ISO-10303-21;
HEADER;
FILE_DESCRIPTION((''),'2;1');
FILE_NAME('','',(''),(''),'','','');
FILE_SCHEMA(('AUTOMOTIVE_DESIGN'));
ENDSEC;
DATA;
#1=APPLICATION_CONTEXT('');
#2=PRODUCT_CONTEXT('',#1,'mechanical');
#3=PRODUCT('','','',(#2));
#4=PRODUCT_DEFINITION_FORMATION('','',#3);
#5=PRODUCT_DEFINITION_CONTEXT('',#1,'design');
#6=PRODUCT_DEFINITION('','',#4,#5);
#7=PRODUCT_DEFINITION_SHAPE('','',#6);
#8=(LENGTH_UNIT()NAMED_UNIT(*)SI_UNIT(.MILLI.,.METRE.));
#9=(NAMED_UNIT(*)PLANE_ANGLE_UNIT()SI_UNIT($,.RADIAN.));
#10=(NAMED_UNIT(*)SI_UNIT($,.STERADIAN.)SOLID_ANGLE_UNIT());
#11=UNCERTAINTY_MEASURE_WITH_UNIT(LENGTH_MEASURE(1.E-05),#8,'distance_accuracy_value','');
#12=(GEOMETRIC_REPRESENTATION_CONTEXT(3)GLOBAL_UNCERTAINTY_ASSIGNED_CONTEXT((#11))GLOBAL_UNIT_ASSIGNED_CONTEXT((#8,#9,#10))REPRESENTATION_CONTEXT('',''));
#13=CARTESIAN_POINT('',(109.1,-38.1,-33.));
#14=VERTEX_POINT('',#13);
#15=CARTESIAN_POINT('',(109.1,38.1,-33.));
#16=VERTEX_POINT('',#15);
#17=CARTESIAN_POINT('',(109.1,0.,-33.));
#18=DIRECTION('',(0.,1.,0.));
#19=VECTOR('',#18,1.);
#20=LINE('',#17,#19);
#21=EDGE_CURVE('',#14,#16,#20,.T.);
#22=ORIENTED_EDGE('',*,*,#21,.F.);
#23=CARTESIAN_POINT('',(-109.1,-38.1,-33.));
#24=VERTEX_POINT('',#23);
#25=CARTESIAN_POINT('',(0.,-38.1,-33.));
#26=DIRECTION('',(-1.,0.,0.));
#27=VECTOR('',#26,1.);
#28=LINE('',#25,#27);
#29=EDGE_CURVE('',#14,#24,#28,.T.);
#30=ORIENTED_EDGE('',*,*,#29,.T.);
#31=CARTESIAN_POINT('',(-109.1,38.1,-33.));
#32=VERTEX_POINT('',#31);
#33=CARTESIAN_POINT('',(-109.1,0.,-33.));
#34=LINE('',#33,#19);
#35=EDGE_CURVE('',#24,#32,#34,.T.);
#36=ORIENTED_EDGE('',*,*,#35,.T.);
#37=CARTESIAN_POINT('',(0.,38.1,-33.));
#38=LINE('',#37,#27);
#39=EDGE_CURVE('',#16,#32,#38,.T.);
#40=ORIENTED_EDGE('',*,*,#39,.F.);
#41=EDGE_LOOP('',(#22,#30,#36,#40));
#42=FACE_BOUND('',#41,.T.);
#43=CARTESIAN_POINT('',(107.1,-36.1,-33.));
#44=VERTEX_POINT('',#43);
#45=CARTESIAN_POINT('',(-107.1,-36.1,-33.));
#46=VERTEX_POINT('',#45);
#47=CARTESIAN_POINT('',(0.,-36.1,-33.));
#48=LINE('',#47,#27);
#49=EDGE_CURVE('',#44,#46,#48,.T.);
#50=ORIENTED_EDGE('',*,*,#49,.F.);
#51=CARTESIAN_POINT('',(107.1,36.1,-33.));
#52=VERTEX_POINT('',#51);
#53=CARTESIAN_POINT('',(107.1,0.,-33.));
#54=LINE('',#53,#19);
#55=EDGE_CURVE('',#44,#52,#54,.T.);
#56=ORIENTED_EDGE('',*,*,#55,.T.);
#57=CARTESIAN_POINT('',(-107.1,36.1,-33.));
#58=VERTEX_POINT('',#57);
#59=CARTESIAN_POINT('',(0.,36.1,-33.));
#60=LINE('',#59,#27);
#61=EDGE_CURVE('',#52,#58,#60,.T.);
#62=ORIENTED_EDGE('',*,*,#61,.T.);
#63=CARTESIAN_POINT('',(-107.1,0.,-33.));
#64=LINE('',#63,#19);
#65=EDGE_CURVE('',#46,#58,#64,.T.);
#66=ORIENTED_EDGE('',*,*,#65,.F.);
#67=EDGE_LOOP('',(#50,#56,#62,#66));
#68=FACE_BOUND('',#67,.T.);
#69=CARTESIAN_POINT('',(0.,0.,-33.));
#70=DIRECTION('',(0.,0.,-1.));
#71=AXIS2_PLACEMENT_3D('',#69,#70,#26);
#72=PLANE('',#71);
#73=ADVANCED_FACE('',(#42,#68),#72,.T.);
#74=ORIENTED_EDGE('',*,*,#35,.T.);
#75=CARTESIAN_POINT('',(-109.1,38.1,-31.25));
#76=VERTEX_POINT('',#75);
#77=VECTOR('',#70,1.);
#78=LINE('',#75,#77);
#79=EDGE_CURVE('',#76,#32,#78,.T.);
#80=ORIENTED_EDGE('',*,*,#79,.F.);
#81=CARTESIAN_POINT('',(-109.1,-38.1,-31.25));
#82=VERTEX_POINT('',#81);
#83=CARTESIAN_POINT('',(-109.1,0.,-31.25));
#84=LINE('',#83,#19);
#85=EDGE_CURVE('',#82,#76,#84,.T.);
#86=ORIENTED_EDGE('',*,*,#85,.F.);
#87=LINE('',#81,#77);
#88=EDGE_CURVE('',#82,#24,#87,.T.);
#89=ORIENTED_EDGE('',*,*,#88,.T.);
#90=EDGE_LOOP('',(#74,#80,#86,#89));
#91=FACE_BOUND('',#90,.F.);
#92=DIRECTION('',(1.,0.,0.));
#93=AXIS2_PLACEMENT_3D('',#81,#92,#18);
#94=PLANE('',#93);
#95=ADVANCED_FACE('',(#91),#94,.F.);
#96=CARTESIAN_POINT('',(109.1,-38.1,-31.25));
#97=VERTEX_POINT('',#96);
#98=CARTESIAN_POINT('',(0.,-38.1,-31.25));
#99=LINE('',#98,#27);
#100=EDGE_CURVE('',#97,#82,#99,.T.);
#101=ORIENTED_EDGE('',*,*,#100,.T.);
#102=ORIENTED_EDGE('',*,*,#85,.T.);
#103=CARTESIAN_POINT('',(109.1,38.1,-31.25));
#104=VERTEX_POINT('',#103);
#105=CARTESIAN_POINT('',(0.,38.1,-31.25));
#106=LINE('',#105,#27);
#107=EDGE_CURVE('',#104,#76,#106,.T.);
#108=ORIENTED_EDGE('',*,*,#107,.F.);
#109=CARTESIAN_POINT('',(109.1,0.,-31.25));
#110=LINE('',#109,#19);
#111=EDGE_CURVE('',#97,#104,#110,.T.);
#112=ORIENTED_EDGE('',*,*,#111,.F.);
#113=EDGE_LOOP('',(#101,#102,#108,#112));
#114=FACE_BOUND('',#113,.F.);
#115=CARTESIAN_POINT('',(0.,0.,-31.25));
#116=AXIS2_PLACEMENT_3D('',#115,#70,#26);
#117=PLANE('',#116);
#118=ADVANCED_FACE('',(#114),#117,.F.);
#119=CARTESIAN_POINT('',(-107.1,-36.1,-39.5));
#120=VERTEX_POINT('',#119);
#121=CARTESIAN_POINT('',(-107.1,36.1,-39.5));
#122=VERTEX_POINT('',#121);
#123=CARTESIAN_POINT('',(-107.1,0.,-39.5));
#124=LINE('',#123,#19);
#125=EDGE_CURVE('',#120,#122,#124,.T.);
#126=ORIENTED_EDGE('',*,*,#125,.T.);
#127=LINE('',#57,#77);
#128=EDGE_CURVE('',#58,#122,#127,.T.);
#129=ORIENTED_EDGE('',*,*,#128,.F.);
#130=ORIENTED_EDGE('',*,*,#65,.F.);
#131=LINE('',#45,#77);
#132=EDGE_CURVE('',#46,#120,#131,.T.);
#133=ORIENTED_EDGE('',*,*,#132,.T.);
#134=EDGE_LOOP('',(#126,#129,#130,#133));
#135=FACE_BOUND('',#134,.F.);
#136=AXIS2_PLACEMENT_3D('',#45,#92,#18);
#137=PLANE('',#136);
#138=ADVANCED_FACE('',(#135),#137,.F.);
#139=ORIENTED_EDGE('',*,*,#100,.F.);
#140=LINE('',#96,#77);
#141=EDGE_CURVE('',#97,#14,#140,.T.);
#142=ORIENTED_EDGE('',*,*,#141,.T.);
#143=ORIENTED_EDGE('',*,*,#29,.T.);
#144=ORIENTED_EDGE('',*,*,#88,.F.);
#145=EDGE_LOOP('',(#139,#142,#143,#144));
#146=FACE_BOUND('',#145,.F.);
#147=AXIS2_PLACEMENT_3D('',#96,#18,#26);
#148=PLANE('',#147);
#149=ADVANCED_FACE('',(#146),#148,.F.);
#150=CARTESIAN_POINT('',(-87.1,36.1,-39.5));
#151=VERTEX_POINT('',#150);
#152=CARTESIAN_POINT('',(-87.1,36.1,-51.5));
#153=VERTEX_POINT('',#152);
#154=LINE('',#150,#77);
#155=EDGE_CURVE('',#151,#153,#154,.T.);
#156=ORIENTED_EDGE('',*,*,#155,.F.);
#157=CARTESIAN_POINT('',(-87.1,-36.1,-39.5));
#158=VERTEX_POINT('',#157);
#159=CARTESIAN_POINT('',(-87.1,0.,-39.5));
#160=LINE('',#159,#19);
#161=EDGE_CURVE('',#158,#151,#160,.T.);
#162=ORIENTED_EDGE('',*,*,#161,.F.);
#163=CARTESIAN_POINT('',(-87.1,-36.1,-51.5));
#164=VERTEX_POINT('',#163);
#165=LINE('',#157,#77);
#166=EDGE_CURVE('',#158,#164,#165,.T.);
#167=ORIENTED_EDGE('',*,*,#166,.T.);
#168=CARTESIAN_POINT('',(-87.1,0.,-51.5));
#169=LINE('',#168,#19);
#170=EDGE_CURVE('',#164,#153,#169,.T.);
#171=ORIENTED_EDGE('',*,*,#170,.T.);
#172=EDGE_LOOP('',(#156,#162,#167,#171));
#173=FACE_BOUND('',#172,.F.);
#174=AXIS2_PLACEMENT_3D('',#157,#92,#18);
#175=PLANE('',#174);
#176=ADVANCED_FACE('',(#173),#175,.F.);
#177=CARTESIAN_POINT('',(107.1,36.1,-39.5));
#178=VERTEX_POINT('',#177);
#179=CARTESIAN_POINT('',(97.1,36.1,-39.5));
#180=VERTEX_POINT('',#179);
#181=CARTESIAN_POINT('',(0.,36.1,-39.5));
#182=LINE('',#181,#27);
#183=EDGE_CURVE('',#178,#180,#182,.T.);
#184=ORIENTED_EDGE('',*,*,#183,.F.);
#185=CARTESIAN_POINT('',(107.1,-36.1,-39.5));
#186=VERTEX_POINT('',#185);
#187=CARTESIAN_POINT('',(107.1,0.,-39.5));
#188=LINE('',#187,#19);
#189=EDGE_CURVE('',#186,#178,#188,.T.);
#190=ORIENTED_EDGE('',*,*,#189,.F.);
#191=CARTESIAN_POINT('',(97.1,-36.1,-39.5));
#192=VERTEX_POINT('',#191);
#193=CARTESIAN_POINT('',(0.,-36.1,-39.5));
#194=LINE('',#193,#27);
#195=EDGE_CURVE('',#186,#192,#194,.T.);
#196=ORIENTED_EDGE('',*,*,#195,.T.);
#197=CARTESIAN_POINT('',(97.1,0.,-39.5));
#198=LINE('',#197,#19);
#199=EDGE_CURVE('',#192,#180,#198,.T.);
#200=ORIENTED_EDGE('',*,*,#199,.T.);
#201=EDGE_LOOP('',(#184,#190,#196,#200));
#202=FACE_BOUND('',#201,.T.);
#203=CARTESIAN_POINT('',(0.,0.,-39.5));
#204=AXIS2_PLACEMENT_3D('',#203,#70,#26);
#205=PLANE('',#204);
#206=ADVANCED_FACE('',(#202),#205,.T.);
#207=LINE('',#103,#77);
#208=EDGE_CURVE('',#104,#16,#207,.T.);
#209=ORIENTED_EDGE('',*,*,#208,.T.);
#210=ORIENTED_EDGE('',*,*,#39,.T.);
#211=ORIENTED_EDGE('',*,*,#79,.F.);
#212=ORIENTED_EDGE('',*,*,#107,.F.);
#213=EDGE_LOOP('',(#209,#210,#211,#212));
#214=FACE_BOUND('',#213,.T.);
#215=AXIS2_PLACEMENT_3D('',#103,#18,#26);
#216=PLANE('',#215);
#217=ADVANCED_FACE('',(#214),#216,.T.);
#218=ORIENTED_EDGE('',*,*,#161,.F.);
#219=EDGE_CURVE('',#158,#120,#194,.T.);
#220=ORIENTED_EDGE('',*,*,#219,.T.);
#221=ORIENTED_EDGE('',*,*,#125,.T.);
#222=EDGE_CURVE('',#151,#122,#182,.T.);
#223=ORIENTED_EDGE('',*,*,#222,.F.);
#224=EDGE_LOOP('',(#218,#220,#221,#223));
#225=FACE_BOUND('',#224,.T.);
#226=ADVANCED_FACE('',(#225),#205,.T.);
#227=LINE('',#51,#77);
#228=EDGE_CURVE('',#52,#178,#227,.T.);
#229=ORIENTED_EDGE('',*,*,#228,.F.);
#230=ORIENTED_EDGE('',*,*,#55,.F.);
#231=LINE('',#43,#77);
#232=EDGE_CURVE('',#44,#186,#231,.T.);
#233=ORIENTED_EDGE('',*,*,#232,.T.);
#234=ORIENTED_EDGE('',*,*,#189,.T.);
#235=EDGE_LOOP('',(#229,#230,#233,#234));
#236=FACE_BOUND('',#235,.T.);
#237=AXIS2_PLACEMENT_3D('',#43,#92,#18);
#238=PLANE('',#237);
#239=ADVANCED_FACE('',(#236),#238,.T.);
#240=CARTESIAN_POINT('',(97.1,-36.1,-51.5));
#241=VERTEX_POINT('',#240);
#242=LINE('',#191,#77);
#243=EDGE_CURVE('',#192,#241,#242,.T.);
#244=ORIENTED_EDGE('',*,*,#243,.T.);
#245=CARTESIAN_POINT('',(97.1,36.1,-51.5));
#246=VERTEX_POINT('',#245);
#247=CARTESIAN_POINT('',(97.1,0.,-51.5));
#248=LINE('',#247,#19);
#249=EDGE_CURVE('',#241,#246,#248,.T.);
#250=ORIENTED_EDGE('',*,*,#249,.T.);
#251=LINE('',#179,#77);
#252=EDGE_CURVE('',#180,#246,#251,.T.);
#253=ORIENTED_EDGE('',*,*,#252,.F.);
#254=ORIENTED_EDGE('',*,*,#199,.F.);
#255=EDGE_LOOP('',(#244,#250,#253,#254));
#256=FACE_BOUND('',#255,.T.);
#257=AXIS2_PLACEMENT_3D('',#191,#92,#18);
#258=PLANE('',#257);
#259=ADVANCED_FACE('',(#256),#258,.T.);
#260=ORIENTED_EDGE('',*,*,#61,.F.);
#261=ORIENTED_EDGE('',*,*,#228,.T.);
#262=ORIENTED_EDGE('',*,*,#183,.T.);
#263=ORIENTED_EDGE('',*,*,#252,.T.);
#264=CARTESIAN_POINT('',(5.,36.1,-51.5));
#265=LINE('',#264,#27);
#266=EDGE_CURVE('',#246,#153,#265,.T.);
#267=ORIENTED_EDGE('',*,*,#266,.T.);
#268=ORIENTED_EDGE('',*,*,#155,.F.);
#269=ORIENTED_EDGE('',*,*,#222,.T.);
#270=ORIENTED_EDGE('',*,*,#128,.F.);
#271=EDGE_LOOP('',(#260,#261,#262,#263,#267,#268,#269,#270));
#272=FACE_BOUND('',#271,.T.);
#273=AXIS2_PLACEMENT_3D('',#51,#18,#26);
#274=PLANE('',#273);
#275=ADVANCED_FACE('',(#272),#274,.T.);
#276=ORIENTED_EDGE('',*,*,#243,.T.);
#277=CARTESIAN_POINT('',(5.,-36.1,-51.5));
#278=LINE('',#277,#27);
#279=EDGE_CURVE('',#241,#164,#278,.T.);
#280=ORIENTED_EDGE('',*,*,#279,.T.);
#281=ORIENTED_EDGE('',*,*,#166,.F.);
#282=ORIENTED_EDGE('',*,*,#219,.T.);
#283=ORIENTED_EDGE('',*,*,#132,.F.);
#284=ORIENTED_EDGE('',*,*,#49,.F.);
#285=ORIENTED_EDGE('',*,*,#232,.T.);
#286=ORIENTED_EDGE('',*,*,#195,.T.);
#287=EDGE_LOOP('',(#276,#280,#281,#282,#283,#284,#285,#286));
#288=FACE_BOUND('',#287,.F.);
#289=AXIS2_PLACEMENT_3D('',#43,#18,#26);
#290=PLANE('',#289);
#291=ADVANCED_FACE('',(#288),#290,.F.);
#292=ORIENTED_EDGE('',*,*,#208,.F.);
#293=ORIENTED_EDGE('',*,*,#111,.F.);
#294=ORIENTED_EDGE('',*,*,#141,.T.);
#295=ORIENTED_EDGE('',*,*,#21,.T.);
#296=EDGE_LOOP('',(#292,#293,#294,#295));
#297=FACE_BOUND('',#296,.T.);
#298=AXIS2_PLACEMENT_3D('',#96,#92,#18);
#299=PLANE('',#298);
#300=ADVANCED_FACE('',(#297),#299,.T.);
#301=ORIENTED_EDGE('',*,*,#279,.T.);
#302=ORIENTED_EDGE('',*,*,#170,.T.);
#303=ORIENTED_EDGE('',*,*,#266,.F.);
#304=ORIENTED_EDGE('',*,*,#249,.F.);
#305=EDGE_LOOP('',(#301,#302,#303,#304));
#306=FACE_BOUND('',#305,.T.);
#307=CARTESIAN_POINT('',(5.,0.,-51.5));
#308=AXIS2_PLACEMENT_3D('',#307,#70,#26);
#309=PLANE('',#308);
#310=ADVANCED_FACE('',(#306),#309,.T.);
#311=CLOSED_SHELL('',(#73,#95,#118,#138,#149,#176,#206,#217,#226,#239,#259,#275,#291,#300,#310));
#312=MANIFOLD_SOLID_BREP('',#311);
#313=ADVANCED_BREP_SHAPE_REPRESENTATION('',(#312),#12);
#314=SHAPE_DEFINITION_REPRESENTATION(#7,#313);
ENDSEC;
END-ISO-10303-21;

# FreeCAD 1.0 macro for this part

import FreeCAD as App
import Part
import Sketcher

doc = App.newDocument("Part")
body = doc.addObject("PartDesign::Body", "Body")

sketch1 = body.newObject("Sketcher::SketchObject", "Sketch")
sketch1.AttachmentSupport = (doc.getObject("XY_Plane"), [""])
sketch1.MapMode = "FlatFace"
sketch1.AttachmentOffset = App.Placement(App.Vector(0, 0, -31.25), App.Rotation())
sketch1.addGeometry(Part.LineSegment(App.Vector(-109.1, -38.1, 0), App.Vector(-109.1, 38.1, 0)), False)
sketch1.addGeometry(Part.LineSegment(App.Vector(-109.1, 38.1, 0), App.Vector(109.1, 38.1, 0)), False)
sketch1.addGeometry(Part.LineSegment(App.Vector(109.1, 38.1, 0), App.Vector(109.1, -38.1, 0)), False)
sketch1.addGeometry(Part.LineSegment(App.Vector(109.1, -38.1, 0), App.Vector(-109.1, -38.1, 0)), False)
sketch1.addConstraint(Sketcher.Constraint("Coincident", 0, 2, 1, 1))
sketch1.addConstraint(Sketcher.Constraint("Coincident", 1, 2, 2, 1))
sketch1.addConstraint(Sketcher.Constraint("Coincident", 2, 2, 3, 1))
sketch1.addConstraint(Sketcher.Constraint("Coincident", 3, 2, 0, 1))
sketch1.addConstraint(Sketcher.Constraint("Vertical", 0))
sketch1.addConstraint(Sketcher.Constraint("Horizontal", 1))
sketch1.addConstraint(Sketcher.Constraint("Vertical", 2))
sketch1.addConstraint(Sketcher.Constraint("Horizontal", 3))
sketch1.addConstraint(Sketcher.Constraint("Symmetric", 0, 2, 2, 2, -1, 1))
sketch1.addConstraint(Sketcher.Constraint("DistanceX", 1, 1, 1, 2, 218.2))
sketch1.addConstraint(Sketcher.Constraint("DistanceY", 0, 1, 0, 2, 76.2))
pad1 = body.newObject("PartDesign::Pad", "Pad")
pad1.Profile = sketch1
pad1.Length = 1.75
pad1.Reversed = True

sketch2 = body.newObject("Sketcher::SketchObject", "Sketch001")
sketch2.AttachmentSupport = (doc.getObject("XY_Plane"), [""])
sketch2.MapMode = "FlatFace"
sketch2.AttachmentOffset = App.Placement(App.Vector(0, 0, -33), App.Rotation())
sketch2.addGeometry(Part.LineSegment(App.Vector(-107.1, -36.1, 0), App.Vector(-107.1, 36.1, 0)), False)
sketch2.addGeometry(Part.LineSegment(App.Vector(-107.1, 36.1, 0), App.Vector(107.1, 36.1, 0)), False)
sketch2.addGeometry(Part.LineSegment(App.Vector(107.1, 36.1, 0), App.Vector(107.1, -36.1, 0)), False)
sketch2.addGeometry(Part.LineSegment(App.Vector(107.1, -36.1, 0), App.Vector(-107.1, -36.1, 0)), False)
sketch2.addConstraint(Sketcher.Constraint("Coincident", 0, 2, 1, 1))
sketch2.addConstraint(Sketcher.Constraint("Coincident", 1, 2, 2, 1))
sketch2.addConstraint(Sketcher.Constraint("Coincident", 2, 2, 3, 1))
sketch2.addConstraint(Sketcher.Constraint("Coincident", 3, 2, 0, 1))
sketch2.addConstraint(Sketcher.Constraint("Vertical", 0))
sketch2.addConstraint(Sketcher.Constraint("Horizontal", 1))
sketch2.addConstraint(Sketcher.Constraint("Vertical", 2))
sketch2.addConstraint(Sketcher.Constraint("Horizontal", 3))
sketch2.addConstraint(Sketcher.Constraint("Symmetric", 0, 2, 2, 2, -1, 1))
sketch2.addConstraint(Sketcher.Constraint("DistanceX", 1, 1, 1, 2, 214.2))
sketch2.addConstraint(Sketcher.Constraint("DistanceY", 0, 1, 0, 2, 72.2))
pad2 = body.newObject("PartDesign::Pad", "Pad001")
pad2.Profile = sketch2
pad2.Length = 6.5
pad2.Reversed = True

sketch3 = body.newObject("Sketcher::SketchObject", "Sketch002")
sketch3.AttachmentSupport = (doc.getObject("XY_Plane"), [""])
sketch3.MapMode = "FlatFace"
sketch3.AttachmentOffset = App.Placement(App.Vector(0, 0, -39.5), App.Rotation())
sketch3.addGeometry(Part.LineSegment(App.Vector(-97.1, -36.1, 0), App.Vector(-97.1, 36.1, 0)), False)
sketch3.addGeometry(Part.LineSegment(App.Vector(-97.1, 36.1, 0), App.Vector(87.1, 36.1, 0)), False)
sketch3.addGeometry(Part.LineSegment(App.Vector(87.1, 36.1, 0), App.Vector(87.1, -36.1, 0)), False)
sketch3.addGeometry(Part.LineSegment(App.Vector(87.1, -36.1, 0), App.Vector(-97.1, -36.1, 0)), False)
sketch3.addConstraint(Sketcher.Constraint("Coincident", 0, 2, 1, 1))
sketch3.addConstraint(Sketcher.Constraint("Coincident", 1, 2, 2, 1))
sketch3.addConstraint(Sketcher.Constraint("Coincident", 2, 2, 3, 1))
sketch3.addConstraint(Sketcher.Constraint("Coincident", 3, 2, 0, 1))
sketch3.addConstraint(Sketcher.Constraint("Vertical", 0))
sketch3.addConstraint(Sketcher.Constraint("Horizontal", 1))
sketch3.addConstraint(Sketcher.Constraint("Vertical", 2))
sketch3.addConstraint(Sketcher.Constraint("Horizontal", 3))
sketch3.addConstraint(Sketcher.Constraint("DistanceX", 1, 1, 1, 2, 184.2))
sketch3.addConstraint(Sketcher.Constraint("DistanceY", 0, 1, 0, 2, 72.2))
sketch3.addConstraint(Sketcher.Constraint("DistanceX", 0, 2, -1, 1, 97.1))
sketch3.addConstraint(Sketcher.Constraint("DistanceY", -1, 1, 0, 2, 36.1))
pad3 = body.newObject("PartDesign::Pad", "Pad002")
pad3.Profile = sketch3
pad3.Length = 12
pad3.Reversed = True
body2 = doc.addObject("PartDesign::Body", "Body001")
doc.recompute()

body.Placement = App.Placement(App.Vector(0, 0, 0), App.Rotation(App.Vector(0, 0, 1), 180))
boolean = body2.newObject("PartDesign::Boolean", "Boolean")
boolean.Type = "Fuse"
boolean.addObjects([body])

doc.recompute()
